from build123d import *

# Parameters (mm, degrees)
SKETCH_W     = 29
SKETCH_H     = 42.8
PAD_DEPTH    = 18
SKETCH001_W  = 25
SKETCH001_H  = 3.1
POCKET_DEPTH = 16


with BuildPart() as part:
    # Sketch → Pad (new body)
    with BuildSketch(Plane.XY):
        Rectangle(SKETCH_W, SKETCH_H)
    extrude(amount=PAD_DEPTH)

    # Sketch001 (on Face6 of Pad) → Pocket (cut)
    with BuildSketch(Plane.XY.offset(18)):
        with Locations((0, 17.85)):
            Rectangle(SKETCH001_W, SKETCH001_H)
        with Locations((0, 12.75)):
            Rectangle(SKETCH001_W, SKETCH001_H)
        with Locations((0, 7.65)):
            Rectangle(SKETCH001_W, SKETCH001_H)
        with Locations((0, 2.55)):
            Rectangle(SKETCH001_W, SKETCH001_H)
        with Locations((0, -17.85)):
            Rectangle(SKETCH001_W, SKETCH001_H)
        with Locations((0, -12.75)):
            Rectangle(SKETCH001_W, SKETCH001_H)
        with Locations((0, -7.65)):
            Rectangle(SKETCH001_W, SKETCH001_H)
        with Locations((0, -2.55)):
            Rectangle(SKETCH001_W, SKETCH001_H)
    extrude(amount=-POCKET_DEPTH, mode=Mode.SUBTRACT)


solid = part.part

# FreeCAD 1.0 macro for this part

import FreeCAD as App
import Part
import Sketcher

V = App.Vector


def add_polygon(sketch, points):
    """Adds a closed chain of lines whose ends are joined by coincident constraints."""
    first, n = sketch.GeometryCount, len(points)
    for a, b in zip(points, points[1:] + points[:1]):
        sketch.addGeometry(Part.LineSegment(App.Vector(*a, 0), App.Vector(*b, 0)), False)
    for i in range(n):
        sketch.addConstraint(Sketcher.Constraint("Coincident", first + i, 2, first + (i + 1) % n, 1))

doc = App.newDocument("Part")
params = doc.addObject("Spreadsheet::Sheet", "Params")
for row, (alias, value) in enumerate([
    ("sketch1_width", "29 mm"),
    ("sketch1_height", "42.8 mm"),
    ("pad1_length", "18 mm"),
    ("sketch2_width", "25 mm"),
    ("sketch2_height", "3.1 mm"),
    ("pocket1_length", "16 mm"),
], start=1):
    params.set(f"A{row}", alias)
    params.set(f"B{row}", "=" + value)
    params.setAlias(f"B{row}", alias)

body = doc.addObject("PartDesign::Body", "Body")

# Sketch on XY plane
sketch1 = doc.addObject("Sketcher::SketchObject", "Sketch")
body.addObject(sketch1)
sketch1.AttachmentSupport = (doc.XY_Plane, [""])
sketch1.MapMode = "FlatFace"
add_polygon(sketch1, [(-14.5, 21.4), (-14.5, -21.4), (14.5, -21.4), (14.5, 21.4)])  # lines 0-3
sketch1.addConstraint([
    Sketcher.Constraint("Vertical", 0),
    Sketcher.Constraint("Horizontal", 1),
    Sketcher.Constraint("Vertical", 2),
    Sketcher.Constraint("Horizontal", 3),
    Sketcher.Constraint("Symmetric", 0, 2, 2, 2, -1, 1),
    Sketcher.Constraint("DistanceX", 1, 1, 1, 2, 29.0),
    Sketcher.Constraint("DistanceY", 0, 2, 0, 1, 42.8),
])
sketch1.setExpression("Constraints[9]", "Params.sketch1_width")
sketch1.setExpression("Constraints[10]", "Params.sketch1_height")
pad1 = doc.addObject("PartDesign::Pad", "Pad")
body.addObject(pad1)
pad1.Profile = sketch1
pad1.setExpression("Length", "Params.pad1_length")

# Sketch on XY plane
sketch2 = doc.addObject("Sketcher::SketchObject", "Sketch001")
body.addObject(sketch2)
sketch2.AttachmentSupport = (doc.XY_Plane, [""])
sketch2.MapMode = "FlatFace"
sketch2.AttachmentOffset = App.Placement(V(0, 0, 18), App.Rotation())
add_polygon(sketch2, [(-12.5, 19.4), (-12.5, 16.3), (12.5, 16.3), (12.5, 19.4)])  # lines 0-3
add_polygon(sketch2, [(-12.5, 14.3), (-12.5, 11.2), (12.5, 11.2), (12.5, 14.3)])  # lines 4-7
add_polygon(sketch2, [(-12.5, 9.2), (-12.5, 6.1), (12.5, 6.1), (12.5, 9.2)])  # lines 8-11
add_polygon(sketch2, [(-12.5, 4.1), (-12.5, 1), (12.5, 1), (12.5, 4.1)])  # lines 12-15
add_polygon(sketch2, [(-12.5, -16.3), (-12.5, -19.4), (12.5, -19.4), (12.5, -16.3)])  # lines 16-19
add_polygon(sketch2, [(-12.5, -11.2), (-12.5, -14.3), (12.5, -14.3), (12.5, -11.2)])  # lines 20-23
add_polygon(sketch2, [(-12.5, -6.1), (-12.5, -9.2), (12.5, -9.2), (12.5, -6.1)])  # lines 24-27
add_polygon(sketch2, [(-12.5, -1), (-12.5, -4.1), (12.5, -4.1), (12.5, -1)])  # lines 28-31
sketch2.addConstraint([
    Sketcher.Constraint("Vertical", 0),
    Sketcher.Constraint("Horizontal", 1),
    Sketcher.Constraint("Vertical", 2),
    Sketcher.Constraint("Horizontal", 3),
    Sketcher.Constraint("Vertical", 4),
    Sketcher.Constraint("Horizontal", 5),
    Sketcher.Constraint("Vertical", 6),
    Sketcher.Constraint("Horizontal", 7),
    Sketcher.Constraint("Vertical", 8),
    Sketcher.Constraint("Horizontal", 9),
    Sketcher.Constraint("Vertical", 10),
    Sketcher.Constraint("Horizontal", 11),
    Sketcher.Constraint("Vertical", 12),
    Sketcher.Constraint("Horizontal", 13),
    Sketcher.Constraint("Vertical", 14),
    Sketcher.Constraint("Horizontal", 15),
    Sketcher.Constraint("Vertical", 16),
    Sketcher.Constraint("Horizontal", 17),
    Sketcher.Constraint("Vertical", 18),
    Sketcher.Constraint("Horizontal", 19),
    Sketcher.Constraint("Vertical", 20),
    Sketcher.Constraint("Horizontal", 21),
    Sketcher.Constraint("Vertical", 22),
    Sketcher.Constraint("Horizontal", 23),
    Sketcher.Constraint("Vertical", 24),
    Sketcher.Constraint("Horizontal", 25),
    Sketcher.Constraint("Vertical", 26),
    Sketcher.Constraint("Horizontal", 27),
    Sketcher.Constraint("Vertical", 28),
    Sketcher.Constraint("Horizontal", 29),
    Sketcher.Constraint("Vertical", 30),
    Sketcher.Constraint("Horizontal", 31),
    Sketcher.Constraint("Symmetric", 2, 2, 16, 2, -1, 1),
    Sketcher.Constraint("Symmetric", 0, 2, 18, 2, -1, 1),
    Sketcher.Constraint("Symmetric", 6, 2, 20, 2, -1, 1),
    Sketcher.Constraint("Symmetric", 4, 2, 22, 2, -1, 1),
    Sketcher.Constraint("Symmetric", 10, 2, 24, 2, -1, 1),
    Sketcher.Constraint("Symmetric", 8, 2, 26, 2, -1, 1),
    Sketcher.Constraint("Symmetric", 14, 2, 28, 2, -1, 1),
    Sketcher.Constraint("Symmetric", 12, 2, 30, 2, -1, 1),
    Sketcher.Constraint("Vertical", 3, 2, 4, 2),
    Sketcher.Constraint("Vertical", 2, 2, 5, 2),
    Sketcher.Constraint("Vertical", 7, 2, 8, 2),
    Sketcher.Constraint("Vertical", 6, 2, 9, 2),
    Sketcher.Constraint("Vertical", 11, 2, 12, 2),
    Sketcher.Constraint("Vertical", 10, 2, 13, 2),
    Sketcher.Constraint("Vertical", 15, 2, 16, 2),
    Sketcher.Constraint("Equal", 2, 4),
    Sketcher.Constraint("Equal", 6, 8),
    Sketcher.Constraint("Equal", 10, 12),
    Sketcher.Constraint("DistanceX", 1, 1, 1, 2, 25.0),
    Sketcher.Constraint("DistanceY", 0, 2, 0, 1, 3.1),
    Sketcher.Constraint("DistanceY", -1, 1, 12, 2, 1.0),
    Sketcher.Constraint("DistanceY", 6, 2, 1, 2, 2.0),
    Sketcher.Constraint("DistanceY", 10, 2, 5, 2, 2.0),
    Sketcher.Constraint("DistanceY", 14, 2, 9, 2, 2.0),
])
sketch2.setExpression("Constraints[82]", "Params.sketch2_width")
sketch2.setExpression("Constraints[83]", "Params.sketch2_height")
pocket1 = doc.addObject("PartDesign::Pocket", "Pocket")
body.addObject(pocket1)
pocket1.Profile = sketch2
pocket1.setExpression("Length", "Params.pocket1_length")

doc.recompute()
